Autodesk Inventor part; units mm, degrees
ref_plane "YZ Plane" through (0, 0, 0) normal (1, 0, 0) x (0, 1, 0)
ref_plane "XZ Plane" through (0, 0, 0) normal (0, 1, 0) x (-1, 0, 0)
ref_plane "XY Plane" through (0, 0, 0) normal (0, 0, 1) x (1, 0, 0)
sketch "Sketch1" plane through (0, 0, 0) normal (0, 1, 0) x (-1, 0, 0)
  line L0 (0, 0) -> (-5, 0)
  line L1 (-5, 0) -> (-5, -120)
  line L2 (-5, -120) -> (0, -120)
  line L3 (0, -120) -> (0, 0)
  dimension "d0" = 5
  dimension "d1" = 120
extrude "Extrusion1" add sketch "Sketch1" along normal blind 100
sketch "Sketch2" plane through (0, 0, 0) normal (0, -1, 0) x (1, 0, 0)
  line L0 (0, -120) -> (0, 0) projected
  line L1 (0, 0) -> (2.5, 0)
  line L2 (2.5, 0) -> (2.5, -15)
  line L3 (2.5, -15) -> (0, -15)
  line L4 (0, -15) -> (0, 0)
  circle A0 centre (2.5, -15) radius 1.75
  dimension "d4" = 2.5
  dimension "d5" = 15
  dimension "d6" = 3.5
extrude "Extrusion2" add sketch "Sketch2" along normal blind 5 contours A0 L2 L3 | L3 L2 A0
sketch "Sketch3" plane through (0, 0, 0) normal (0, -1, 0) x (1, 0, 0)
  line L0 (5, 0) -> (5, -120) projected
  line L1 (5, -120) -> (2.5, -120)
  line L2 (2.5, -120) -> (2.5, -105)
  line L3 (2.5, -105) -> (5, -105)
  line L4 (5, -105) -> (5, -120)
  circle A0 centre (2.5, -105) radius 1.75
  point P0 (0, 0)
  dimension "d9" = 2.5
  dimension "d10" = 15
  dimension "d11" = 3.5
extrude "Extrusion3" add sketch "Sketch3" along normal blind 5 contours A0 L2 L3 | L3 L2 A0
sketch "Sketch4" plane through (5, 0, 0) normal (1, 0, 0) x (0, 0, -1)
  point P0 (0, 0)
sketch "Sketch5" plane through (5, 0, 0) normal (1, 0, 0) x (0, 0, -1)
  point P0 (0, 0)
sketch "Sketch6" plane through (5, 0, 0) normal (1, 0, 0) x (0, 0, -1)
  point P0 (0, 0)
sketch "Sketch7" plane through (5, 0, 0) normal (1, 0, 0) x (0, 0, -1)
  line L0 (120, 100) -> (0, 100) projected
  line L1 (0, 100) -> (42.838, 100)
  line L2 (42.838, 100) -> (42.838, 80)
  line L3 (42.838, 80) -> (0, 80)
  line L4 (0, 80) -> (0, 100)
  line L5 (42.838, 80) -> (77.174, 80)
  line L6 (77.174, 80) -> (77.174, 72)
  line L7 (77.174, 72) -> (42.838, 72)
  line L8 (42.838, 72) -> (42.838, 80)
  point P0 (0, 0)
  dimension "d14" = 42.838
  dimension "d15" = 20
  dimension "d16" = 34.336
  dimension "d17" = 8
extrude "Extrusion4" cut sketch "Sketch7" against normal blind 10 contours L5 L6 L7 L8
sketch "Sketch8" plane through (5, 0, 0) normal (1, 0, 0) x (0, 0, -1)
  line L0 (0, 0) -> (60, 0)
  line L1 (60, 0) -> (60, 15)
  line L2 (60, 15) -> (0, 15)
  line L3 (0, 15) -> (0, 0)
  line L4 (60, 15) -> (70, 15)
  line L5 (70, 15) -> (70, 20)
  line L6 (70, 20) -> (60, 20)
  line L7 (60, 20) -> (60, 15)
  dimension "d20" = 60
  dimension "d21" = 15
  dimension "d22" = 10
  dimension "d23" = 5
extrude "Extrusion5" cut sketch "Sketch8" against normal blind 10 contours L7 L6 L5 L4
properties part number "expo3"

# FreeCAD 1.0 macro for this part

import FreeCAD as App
import Part
import Sketcher

V = App.Vector
Q = App.Units.Quantity

doc = App.newDocument("Part")
body = doc.addObject("PartDesign::Body", "Body")

# Sketch on XZ plane
sketch1 = body.newObject("Sketcher::SketchObject", "Sketch")
sketch1.AttachmentSupport = (doc.getObject("XZ_Plane"), [""])
sketch1.MapMode = "FlatFace"
sketch1.addGeometry([
    Part.LineSegment(V(0, -120, 0), V(0, 0, 0)),
    Part.LineSegment(V(0, 0, 0), V(5, 0, 0)),
    Part.LineSegment(V(5, 0, 0), V(5, -120, 0)),
    Part.LineSegment(V(5, -120, 0), V(0, -120, 0)),
], False)
sketch1.addConstraint([
    Sketcher.Constraint("Coincident", 0, 2, 1, 1),
    Sketcher.Constraint("Coincident", 1, 2, 2, 1),
    Sketcher.Constraint("Coincident", 2, 2, 3, 1),
    Sketcher.Constraint("Coincident", 3, 2, 0, 1),
    Sketcher.Constraint("Vertical", 0),
    Sketcher.Constraint("Horizontal", 1),
    Sketcher.Constraint("Vertical", 2),
    Sketcher.Constraint("Horizontal", 3),
    Sketcher.Constraint("Coincident", 0, 2, -1, 1),
    Sketcher.Constraint("DistanceX", 1, 1, 1, 2, Q("5 mm")),
    Sketcher.Constraint("DistanceY", 0, 1, 0, 2, Q("120 mm")),
])
pad1 = body.newObject("PartDesign::Pad", "Pad")
pad1.Profile = sketch1
pad1.Length = 100
pad1.Reversed = True

# Sketch on XZ plane
sketch2 = body.newObject("Sketcher::SketchObject", "Sketch001")
sketch2.AttachmentSupport = (doc.getObject("XZ_Plane"), [""])
sketch2.MapMode = "FlatFace"
sketch2.addGeometry(Part.Circle(V(2.5, -15, 0), V(0, 0, 1), 1.8), False)
sketch2.addConstraint([
    Sketcher.Constraint("Diameter", 0, Q("3.5 mm")),
    Sketcher.Constraint("DistanceY", 0, 3, -1, 1, Q("15 mm")),
    Sketcher.Constraint("DistanceX", -1, 1, 0, 3, Q("2.5 mm")),
])
pad2 = body.newObject("PartDesign::Pad", "Pad001")
pad2.Profile = sketch2
pad2.Length = 5

# Sketch on XZ plane
sketch3 = body.newObject("Sketcher::SketchObject", "Sketch002")
sketch3.AttachmentSupport = (doc.getObject("XZ_Plane"), [""])
sketch3.MapMode = "FlatFace"
sketch3.addGeometry(Part.Circle(V(2.5, -105, 0), V(0, 0, 1), 1.8), False)
sketch3.addConstraint([
    Sketcher.Constraint("Diameter", 0, Q("3.5 mm")),
    Sketcher.Constraint("DistanceX", -1, 1, 0, 3, Q("2.5 mm")),
    Sketcher.Constraint("DistanceY", 0, 3, -1, 1, Q("105 mm")),
])
pad3 = body.newObject("PartDesign::Pad", "Pad002")
pad3.Profile = sketch3
pad3.Length = 5

# Sketch on YZ plane
sketch4 = body.newObject("Sketcher::SketchObject", "Sketch003")
sketch4.AttachmentSupport = (doc.getObject("YZ_Plane"), [""])
sketch4.MapMode = "FlatFace"
sketch4.AttachmentOffset = App.Placement(V(0, 0, 5), App.Rotation())
sketch4.addGeometry([
    Part.LineSegment(V(80, -77, 0), V(80, -43, 0)),
    Part.LineSegment(V(80, -43, 0), V(72, -43, 0)),
    Part.LineSegment(V(72, -43, 0), V(72, -77, 0)),
    Part.LineSegment(V(72, -77, 0), V(80, -77, 0)),
], False)
sketch4.addConstraint([
    Sketcher.Constraint("Coincident", 0, 2, 1, 1),
    Sketcher.Constraint("Coincident", 1, 2, 2, 1),
    Sketcher.Constraint("Coincident", 2, 2, 3, 1),
    Sketcher.Constraint("Coincident", 3, 2, 0, 1),
    Sketcher.Constraint("Vertical", 0),
    Sketcher.Constraint("Horizontal", 1),
    Sketcher.Constraint("Vertical", 2),
    Sketcher.Constraint("Horizontal", 3),
    Sketcher.Constraint("DistanceX", 1, 2, 1, 1, Q("8 mm")),
    Sketcher.Constraint("DistanceY", 0, 1, 0, 2, Q("34.336 mm")),
    Sketcher.Constraint("DistanceY", 0, 2, -1, 1, Q("42.838 mm")),
    Sketcher.Constraint("DistanceX", -1, 1, 0, 2, Q("80 mm")),
])
pocket1 = body.newObject("PartDesign::Pocket", "Pocket")
pocket1.Profile = sketch4
pocket1.Length = 10

# Sketch on YZ plane
sketch5 = body.newObject("Sketcher::SketchObject", "Sketch004")
sketch5.AttachmentSupport = (doc.getObject("YZ_Plane"), [""])
sketch5.MapMode = "FlatFace"
sketch5.AttachmentOffset = App.Placement(V(0, 0, 5), App.Rotation())
sketch5.addGeometry([
    Part.LineSegment(V(20, -60, 0), V(15, -60, 0)),
    Part.LineSegment(V(15, -60, 0), V(15, -70, 0)),
    Part.LineSegment(V(15, -70, 0), V(20, -70, 0)),
    Part.LineSegment(V(20, -70, 0), V(20, -60, 0)),
], False)
sketch5.addConstraint([
    Sketcher.Constraint("Coincident", 0, 2, 1, 1),
    Sketcher.Constraint("Coincident", 1, 2, 2, 1),
    Sketcher.Constraint("Coincident", 2, 2, 3, 1),
    Sketcher.Constraint("Coincident", 3, 2, 0, 1),
    Sketcher.Constraint("Horizontal", 0),
    Sketcher.Constraint("Vertical", 1),
    Sketcher.Constraint("Horizontal", 2),
    Sketcher.Constraint("Vertical", 3),
    Sketcher.Constraint("DistanceX", 0, 2, 0, 1, Q("5 mm")),
    Sketcher.Constraint("DistanceY", 1, 2, 1, 1, Q("10 mm")),
    Sketcher.Constraint("DistanceX", -1, 1, 0, 2, Q("15 mm")),
    Sketcher.Constraint("DistanceY", 0, 2, -1, 1, Q("60 mm")),
])
pocket2 = body.newObject("PartDesign::Pocket", "Pocket001")
pocket2.Profile = sketch5
pocket2.Length = 10

doc.recompute()
